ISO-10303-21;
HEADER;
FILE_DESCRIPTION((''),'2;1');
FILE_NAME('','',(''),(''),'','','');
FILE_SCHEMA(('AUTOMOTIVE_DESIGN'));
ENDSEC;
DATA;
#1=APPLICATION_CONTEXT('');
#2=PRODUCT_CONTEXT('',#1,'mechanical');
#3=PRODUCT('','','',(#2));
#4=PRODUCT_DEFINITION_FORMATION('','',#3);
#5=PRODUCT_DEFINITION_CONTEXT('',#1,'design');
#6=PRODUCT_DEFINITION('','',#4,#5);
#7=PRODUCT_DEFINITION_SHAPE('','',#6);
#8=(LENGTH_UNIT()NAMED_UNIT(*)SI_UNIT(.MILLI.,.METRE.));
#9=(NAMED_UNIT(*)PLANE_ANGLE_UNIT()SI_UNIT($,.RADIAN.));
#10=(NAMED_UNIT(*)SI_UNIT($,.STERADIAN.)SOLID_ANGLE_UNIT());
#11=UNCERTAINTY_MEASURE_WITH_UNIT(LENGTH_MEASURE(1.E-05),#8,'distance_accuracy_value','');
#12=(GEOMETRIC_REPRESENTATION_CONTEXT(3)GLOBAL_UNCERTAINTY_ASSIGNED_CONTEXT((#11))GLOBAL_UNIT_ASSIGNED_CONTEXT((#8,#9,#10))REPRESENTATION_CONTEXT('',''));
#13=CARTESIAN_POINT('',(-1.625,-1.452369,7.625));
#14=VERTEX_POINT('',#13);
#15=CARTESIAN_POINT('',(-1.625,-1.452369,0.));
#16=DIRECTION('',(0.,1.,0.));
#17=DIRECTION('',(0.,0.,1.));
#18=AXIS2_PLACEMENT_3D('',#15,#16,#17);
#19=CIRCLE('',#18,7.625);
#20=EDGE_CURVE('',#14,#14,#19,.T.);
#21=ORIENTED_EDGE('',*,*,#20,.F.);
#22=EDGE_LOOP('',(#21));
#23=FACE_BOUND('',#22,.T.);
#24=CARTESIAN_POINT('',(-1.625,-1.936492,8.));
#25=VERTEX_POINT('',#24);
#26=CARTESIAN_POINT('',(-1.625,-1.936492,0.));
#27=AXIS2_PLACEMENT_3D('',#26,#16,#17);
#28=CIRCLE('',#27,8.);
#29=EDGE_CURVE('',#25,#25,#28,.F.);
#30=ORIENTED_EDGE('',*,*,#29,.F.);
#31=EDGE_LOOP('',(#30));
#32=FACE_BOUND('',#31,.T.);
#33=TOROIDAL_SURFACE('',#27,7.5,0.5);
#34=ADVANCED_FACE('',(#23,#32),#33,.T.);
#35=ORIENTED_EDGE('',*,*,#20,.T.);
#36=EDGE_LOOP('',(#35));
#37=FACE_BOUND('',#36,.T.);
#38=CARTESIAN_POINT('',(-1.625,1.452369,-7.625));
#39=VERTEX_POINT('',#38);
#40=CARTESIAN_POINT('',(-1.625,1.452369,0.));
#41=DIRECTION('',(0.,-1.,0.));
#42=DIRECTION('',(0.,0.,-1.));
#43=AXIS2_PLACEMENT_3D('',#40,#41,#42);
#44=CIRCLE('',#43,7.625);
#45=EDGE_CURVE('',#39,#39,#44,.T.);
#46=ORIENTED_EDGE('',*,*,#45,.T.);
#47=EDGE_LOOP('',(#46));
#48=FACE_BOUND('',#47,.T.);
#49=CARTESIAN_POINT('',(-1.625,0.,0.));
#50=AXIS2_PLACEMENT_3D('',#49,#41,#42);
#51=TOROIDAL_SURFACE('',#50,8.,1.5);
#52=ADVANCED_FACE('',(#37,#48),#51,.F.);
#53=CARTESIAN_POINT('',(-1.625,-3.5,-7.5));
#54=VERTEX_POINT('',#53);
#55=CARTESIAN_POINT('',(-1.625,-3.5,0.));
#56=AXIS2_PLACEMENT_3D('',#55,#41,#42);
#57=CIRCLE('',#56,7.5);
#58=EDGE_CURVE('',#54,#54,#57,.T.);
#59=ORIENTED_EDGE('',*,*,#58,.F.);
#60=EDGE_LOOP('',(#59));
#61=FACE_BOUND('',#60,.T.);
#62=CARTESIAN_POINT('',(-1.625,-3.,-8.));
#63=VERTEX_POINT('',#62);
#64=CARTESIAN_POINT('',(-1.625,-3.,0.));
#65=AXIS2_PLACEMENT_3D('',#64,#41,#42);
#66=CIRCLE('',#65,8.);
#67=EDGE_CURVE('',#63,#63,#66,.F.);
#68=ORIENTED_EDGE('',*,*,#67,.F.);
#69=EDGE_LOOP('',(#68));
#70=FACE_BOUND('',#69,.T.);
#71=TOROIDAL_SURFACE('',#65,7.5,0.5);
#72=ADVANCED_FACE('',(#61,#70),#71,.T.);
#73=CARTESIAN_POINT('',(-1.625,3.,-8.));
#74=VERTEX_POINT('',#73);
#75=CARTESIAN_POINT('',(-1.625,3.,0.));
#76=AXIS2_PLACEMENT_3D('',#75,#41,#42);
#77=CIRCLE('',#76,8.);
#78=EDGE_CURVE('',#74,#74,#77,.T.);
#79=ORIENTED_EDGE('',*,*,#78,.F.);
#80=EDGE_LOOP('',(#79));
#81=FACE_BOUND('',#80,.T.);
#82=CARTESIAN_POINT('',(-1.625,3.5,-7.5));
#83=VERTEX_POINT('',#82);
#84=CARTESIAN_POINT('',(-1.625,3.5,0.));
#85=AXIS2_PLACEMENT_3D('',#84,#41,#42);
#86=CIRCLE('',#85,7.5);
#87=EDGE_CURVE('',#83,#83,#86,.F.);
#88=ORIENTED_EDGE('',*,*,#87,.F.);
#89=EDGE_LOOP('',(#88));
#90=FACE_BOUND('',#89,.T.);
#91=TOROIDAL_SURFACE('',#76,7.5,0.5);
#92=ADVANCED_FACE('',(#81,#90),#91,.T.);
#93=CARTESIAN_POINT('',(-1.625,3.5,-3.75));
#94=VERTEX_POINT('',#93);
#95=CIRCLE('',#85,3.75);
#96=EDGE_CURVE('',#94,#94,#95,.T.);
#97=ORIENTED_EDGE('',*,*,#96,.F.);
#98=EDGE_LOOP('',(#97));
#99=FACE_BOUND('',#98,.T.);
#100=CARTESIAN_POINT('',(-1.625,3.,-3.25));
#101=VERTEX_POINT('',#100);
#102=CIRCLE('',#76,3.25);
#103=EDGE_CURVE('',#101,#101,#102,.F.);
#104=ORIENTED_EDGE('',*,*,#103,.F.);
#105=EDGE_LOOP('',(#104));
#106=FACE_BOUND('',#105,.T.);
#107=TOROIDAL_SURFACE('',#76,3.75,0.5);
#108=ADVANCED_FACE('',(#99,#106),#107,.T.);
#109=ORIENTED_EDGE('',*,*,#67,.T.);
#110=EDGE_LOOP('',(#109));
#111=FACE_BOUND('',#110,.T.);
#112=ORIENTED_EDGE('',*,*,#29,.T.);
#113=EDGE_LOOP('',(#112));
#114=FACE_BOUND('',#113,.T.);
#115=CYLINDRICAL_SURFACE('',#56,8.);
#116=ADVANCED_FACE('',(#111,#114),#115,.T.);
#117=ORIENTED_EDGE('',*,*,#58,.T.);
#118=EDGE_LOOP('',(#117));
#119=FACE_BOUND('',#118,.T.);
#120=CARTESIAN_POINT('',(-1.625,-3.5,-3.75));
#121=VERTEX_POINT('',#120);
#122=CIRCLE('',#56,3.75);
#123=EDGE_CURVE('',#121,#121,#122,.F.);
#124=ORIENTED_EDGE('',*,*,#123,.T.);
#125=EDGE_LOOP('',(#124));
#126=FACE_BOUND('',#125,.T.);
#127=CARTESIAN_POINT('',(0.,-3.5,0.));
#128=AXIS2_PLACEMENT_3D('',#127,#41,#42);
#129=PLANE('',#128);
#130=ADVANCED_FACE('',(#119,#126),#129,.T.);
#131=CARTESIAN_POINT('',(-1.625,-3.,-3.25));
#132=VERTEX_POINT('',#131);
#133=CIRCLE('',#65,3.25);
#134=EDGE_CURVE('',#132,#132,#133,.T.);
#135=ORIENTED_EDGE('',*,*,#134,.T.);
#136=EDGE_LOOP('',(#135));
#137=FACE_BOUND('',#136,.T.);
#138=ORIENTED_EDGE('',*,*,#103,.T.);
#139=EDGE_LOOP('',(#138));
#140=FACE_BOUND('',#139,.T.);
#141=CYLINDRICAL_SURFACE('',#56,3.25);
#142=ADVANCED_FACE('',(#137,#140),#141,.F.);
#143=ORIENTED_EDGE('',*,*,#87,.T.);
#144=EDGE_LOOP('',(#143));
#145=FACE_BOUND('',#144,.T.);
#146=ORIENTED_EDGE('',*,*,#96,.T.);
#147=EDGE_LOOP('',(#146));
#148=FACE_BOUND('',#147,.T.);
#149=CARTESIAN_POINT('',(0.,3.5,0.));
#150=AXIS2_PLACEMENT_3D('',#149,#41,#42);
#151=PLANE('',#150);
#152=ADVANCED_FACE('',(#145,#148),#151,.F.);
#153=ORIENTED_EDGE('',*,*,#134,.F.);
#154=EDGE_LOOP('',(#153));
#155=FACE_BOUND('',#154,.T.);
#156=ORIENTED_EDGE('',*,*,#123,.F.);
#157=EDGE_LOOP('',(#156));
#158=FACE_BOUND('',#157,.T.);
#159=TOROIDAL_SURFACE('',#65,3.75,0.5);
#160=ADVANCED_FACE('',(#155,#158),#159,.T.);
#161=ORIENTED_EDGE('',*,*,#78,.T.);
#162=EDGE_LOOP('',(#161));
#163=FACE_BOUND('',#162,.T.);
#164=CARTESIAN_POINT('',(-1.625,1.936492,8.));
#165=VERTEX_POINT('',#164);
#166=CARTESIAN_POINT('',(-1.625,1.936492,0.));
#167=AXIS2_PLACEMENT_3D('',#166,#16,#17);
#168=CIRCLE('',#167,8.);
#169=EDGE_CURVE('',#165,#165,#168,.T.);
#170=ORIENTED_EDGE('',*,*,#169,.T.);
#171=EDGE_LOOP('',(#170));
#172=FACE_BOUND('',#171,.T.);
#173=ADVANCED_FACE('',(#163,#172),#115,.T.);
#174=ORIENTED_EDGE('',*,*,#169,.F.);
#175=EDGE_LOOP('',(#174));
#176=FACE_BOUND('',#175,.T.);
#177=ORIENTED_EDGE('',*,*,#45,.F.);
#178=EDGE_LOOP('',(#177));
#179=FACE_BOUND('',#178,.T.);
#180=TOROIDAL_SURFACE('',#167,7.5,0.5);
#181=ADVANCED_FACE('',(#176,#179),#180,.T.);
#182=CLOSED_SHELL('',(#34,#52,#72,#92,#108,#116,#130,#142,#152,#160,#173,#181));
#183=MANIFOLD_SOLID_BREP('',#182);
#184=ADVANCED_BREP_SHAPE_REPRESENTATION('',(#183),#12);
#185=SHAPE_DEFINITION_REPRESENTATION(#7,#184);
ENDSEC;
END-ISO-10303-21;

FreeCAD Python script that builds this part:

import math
import FreeCAD as App
import Part
import Sketcher
Q = App.Units.Quantity


def edges_at(feature, points):
    """Names of the edges that pass closest to the given points."""
    edges = feature.Shape.Edges
    near = lambda p: min(range(len(edges)), key=lambda i: edges[i].distToShape(Part.Vertex(*p))[0])
    return sorted({f"Edge{near(p) + 1}" for p in points})

doc = App.newDocument("Part")
body = doc.addObject("PartDesign::Body", "Body")

# Sketch on XY plane
sketch1 = body.newObject("Sketcher::SketchObject", "Sketch")
sketch1.AttachmentSupport = (doc.getObject("XY_Plane"), [""])
sketch1.MapMode = "FlatFace"
sketch1.addGeometry([
    Part.LineSegment(App.Vector(1.625, 3.5, 0), App.Vector(1.625, -3.5, 0)),  # 0
    Part.LineSegment(App.Vector(1.625, -3.5, 0), App.Vector(6.375, -3.5, 0)),  # 1
    Part.LineSegment(App.Vector(6.375, -3.5, 0), App.Vector(6.375, -1.5, 0)),  # 2
    Part.ArcOfCircle(Part.Circle(App.Vector(6.375, 0, 0), App.Vector(0, 0, 1), 1.5), math.radians(90), math.radians(270)),  # 3
    Part.LineSegment(App.Vector(6.375, 1.5, 0), App.Vector(6.375, 3.5, 0)),  # 4
    Part.LineSegment(App.Vector(6.375, 3.5, 0), App.Vector(1.625, 3.5, 0)),  # 5
], False)
sketch1.addGeometry(Part.LineSegment(App.Vector(-1.625, -3.5, 0), App.Vector(-1.625, 3.5, 0)), True)  # axis
sketch1.addConstraint([
    Sketcher.Constraint("Coincident", 0, 2, 1, 1),
    Sketcher.Constraint("Coincident", 1, 2, 2, 1),
    Sketcher.Constraint("Coincident", 2, 2, 3, 2),
    Sketcher.Constraint("Coincident", 3, 1, 4, 1),
    Sketcher.Constraint("Coincident", 4, 2, 5, 1),
    Sketcher.Constraint("Coincident", 5, 2, 0, 1),
    Sketcher.Constraint("Vertical", 0),
    Sketcher.Constraint("Horizontal", 1),
    Sketcher.Constraint("Vertical", 2),
    Sketcher.Constraint("Vertical", 4),
    Sketcher.Constraint("Horizontal", 5),
    Sketcher.Constraint("Vertical", 6),
    Sketcher.Constraint("Symmetric", 5, 2, 6, 1, -1, 1),
    Sketcher.Constraint("Symmetric", 2, 2, 3, 1, -1),
    Sketcher.Constraint("Horizontal", 1, 2, 6, 1),
    Sketcher.Constraint("Horizontal", 5, 2, 6, 2),
    Sketcher.Constraint("Vertical", 3, 3, 1, 2),
    Sketcher.Constraint("Radius", 3, Q("1.5 mm")),
    Sketcher.Constraint("DistanceY", 0, 2, 0, 1, Q("7 mm")),
    Sketcher.Constraint("DistanceX", 6, 1, 1, 2, Q("8 mm")),
    Sketcher.Constraint("DistanceX", 1, 1, 1, 2, Q("4.75 mm")),
])
revolution = body.newObject("PartDesign::Revolution", "Revolution")
revolution.Profile = sketch1
revolution.ReferenceAxis = (sketch1, ["Axis0"])
revolution.Angle = 360
doc.recompute()

fillet = body.newObject("PartDesign::Fillet", "Fillet")
fillet.Base = (revolution, edges_at(revolution, [
    (-1.625, -1.5, 8),
    (-1.625, -3.5, 8),
    (-1.625, -3.5, 3.25),
    (-1.625, 3.5, 3.25),
    (-1.625, 3.5, 8),
    (-1.625, 1.5, 8),
]))
fillet.Radius = 0.5

doc.recompute()
